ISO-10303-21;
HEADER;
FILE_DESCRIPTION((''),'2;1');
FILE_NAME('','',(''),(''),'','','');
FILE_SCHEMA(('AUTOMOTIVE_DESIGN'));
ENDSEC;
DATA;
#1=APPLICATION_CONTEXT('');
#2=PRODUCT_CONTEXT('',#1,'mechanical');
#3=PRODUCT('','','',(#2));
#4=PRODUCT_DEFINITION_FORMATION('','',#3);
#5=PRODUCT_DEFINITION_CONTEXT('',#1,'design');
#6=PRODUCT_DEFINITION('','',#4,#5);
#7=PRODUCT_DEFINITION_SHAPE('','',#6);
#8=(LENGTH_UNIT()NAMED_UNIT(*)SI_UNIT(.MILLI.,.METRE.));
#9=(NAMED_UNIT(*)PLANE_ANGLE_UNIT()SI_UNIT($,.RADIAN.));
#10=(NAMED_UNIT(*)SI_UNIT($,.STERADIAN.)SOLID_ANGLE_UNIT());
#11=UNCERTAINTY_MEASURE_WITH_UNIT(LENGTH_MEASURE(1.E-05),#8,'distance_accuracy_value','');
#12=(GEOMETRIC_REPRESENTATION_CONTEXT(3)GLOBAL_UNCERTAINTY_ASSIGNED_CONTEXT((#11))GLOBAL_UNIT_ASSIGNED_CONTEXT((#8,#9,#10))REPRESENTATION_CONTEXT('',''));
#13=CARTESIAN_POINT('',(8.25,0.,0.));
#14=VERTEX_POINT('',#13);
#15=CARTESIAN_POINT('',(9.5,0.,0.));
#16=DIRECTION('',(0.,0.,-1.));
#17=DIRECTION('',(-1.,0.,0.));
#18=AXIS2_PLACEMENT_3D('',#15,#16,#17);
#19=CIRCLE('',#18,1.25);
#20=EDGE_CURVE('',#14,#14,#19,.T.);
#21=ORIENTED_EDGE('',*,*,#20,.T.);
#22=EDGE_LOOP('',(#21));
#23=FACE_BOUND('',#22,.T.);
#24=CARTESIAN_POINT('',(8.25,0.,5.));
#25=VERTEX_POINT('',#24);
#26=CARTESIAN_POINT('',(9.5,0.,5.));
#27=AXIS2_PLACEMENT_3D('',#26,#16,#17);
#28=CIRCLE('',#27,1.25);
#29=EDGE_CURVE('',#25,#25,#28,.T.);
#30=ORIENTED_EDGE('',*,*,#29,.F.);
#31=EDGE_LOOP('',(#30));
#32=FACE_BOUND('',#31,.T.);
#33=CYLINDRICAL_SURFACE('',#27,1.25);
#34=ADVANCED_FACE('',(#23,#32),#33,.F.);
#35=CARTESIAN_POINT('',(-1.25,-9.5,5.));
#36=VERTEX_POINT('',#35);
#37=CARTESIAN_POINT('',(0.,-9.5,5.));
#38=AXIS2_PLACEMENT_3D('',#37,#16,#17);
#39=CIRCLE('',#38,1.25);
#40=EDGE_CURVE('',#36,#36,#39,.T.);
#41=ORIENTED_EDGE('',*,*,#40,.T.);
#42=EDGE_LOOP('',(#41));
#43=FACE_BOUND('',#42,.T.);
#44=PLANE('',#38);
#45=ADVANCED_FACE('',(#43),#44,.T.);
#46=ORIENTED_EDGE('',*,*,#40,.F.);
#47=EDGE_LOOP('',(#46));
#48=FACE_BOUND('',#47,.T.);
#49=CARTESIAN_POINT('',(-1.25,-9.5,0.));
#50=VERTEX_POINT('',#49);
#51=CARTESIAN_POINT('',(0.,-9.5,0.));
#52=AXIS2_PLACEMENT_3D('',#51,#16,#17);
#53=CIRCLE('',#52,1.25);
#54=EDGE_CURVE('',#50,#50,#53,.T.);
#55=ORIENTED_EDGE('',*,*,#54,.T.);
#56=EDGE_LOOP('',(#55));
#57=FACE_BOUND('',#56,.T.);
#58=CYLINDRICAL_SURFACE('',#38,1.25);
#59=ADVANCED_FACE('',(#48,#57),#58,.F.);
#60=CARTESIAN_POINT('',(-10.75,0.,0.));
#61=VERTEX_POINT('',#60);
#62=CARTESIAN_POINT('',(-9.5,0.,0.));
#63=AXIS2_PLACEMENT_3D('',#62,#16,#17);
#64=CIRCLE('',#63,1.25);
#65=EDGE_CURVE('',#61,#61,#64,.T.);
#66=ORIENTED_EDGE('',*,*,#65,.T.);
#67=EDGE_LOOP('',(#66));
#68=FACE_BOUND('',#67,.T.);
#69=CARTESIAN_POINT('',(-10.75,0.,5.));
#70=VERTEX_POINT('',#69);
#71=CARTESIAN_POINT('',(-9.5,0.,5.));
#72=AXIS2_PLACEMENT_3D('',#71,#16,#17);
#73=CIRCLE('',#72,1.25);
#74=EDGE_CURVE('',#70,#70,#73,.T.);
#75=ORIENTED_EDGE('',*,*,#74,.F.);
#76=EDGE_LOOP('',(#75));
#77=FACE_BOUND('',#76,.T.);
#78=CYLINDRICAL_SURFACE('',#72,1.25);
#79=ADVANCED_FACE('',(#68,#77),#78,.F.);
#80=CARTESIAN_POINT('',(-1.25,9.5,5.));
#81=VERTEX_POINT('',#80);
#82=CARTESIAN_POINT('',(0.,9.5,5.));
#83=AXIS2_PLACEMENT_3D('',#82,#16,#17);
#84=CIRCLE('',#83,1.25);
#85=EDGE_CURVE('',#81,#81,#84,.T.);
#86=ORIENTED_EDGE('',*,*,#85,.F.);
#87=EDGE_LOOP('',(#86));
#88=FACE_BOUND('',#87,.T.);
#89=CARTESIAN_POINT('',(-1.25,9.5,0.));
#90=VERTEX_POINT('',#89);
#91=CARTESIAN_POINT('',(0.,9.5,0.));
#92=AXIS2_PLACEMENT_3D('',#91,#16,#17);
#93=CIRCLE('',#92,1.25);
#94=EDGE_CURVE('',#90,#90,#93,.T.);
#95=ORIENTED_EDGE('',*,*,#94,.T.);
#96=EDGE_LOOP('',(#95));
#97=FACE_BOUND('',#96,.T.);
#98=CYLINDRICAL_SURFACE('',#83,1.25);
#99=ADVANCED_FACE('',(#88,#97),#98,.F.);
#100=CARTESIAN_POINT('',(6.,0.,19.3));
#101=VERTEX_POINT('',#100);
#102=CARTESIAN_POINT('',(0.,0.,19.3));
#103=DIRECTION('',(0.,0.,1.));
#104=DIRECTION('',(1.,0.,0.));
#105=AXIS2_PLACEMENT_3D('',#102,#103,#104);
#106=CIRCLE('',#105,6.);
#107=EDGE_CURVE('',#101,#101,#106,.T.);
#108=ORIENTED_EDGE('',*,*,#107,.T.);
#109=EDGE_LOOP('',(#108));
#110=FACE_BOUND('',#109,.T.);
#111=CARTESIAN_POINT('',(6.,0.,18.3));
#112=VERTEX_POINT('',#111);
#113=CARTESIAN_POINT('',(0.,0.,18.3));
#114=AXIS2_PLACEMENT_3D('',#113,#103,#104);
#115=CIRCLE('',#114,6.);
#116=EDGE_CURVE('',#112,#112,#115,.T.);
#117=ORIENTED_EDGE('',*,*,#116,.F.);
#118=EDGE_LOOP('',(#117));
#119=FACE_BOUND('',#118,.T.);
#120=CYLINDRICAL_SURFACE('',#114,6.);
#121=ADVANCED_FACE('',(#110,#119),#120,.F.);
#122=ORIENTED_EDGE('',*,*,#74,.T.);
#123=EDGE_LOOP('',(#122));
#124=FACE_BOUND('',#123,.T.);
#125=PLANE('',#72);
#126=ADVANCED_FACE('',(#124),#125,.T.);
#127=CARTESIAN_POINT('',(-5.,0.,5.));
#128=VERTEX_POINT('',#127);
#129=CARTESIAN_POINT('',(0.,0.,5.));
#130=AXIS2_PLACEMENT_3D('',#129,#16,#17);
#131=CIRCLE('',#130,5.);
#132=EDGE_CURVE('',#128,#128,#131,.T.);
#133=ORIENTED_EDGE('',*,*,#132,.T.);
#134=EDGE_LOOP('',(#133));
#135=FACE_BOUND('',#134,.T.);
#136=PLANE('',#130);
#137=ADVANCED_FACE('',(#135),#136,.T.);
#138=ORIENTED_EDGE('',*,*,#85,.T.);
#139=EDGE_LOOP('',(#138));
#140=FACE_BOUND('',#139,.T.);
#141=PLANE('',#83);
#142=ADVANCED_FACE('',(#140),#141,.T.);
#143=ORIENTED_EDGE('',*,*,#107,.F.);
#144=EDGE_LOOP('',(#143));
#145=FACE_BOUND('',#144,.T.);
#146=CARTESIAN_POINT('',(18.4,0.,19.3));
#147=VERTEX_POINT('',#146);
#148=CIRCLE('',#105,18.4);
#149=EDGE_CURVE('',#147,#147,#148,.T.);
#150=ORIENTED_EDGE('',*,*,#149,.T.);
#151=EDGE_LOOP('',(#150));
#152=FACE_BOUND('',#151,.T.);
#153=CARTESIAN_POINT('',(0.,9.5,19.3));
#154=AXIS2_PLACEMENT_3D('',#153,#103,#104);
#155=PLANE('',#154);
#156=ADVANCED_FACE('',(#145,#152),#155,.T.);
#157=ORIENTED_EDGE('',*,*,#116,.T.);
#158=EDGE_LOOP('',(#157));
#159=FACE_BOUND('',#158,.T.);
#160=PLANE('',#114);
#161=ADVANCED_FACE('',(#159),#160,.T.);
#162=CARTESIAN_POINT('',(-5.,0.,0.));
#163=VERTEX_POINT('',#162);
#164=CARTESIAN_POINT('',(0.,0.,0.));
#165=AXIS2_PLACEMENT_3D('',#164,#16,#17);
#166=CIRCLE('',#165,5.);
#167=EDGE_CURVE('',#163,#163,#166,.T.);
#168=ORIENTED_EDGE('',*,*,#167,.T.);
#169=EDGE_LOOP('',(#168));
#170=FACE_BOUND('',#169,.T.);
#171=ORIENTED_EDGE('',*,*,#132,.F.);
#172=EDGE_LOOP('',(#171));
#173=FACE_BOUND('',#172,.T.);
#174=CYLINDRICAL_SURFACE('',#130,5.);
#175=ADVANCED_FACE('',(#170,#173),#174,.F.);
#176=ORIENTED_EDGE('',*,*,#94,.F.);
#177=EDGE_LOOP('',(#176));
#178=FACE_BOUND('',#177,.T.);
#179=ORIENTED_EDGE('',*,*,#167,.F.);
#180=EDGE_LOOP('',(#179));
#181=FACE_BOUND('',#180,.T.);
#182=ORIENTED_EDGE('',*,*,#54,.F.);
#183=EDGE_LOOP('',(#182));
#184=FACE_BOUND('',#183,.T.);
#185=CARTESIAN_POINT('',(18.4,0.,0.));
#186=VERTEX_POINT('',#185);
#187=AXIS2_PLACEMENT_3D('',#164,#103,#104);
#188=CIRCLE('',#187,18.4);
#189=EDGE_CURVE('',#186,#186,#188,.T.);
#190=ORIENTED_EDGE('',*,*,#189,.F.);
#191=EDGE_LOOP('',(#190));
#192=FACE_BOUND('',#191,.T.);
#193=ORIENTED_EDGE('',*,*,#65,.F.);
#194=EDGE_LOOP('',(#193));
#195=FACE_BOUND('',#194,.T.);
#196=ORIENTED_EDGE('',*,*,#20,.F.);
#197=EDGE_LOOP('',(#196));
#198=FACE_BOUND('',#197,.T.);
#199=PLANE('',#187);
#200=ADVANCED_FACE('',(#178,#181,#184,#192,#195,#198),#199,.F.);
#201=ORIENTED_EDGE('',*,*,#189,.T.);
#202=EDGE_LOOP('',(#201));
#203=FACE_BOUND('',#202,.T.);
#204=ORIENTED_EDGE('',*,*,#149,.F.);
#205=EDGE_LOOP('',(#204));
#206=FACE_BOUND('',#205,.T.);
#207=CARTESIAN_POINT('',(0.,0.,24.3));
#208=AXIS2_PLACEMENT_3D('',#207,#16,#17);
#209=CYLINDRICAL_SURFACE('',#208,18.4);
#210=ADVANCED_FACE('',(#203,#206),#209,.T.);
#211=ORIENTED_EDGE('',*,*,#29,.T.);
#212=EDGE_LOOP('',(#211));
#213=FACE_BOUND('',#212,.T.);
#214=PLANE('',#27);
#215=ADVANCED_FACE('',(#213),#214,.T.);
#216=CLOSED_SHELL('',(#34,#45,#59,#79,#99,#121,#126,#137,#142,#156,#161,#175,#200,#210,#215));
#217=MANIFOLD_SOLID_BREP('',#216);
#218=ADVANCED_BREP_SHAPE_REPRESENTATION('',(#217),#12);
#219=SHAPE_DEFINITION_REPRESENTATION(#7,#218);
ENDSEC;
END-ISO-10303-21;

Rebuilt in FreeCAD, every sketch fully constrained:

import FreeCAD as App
import Part
import Sketcher
from FreeCAD import Vector

doc = App.newDocument("Part")
body = doc.addObject("PartDesign::Body", "Body")

sketch1 = body.newObject("Sketcher::SketchObject", "Sketch")
sketch1.AttachmentSupport = (doc.getObject("XY_Plane"), [""])
sketch1.MapMode = "FlatFace"
sketch1.addGeometry(Part.Circle(Vector(0, 0, 0), Vector(0, 0, 1), 18.4), False)
sketch1.addConstraint(Sketcher.Constraint("Coincident", 0, 3, -1, 1))
sketch1.addConstraint(Sketcher.Constraint("Diameter", 0, 36.8))
pad1 = body.newObject("PartDesign::Pad", "Pad")
pad1.Profile = sketch1
pad1.Length = 24.3

sketch2 = body.newObject("Sketcher::SketchObject", "Sketch001")
sketch2.AttachmentSupport = (doc.getObject("XY_Plane"), [""])
sketch2.MapMode = "FlatFace"
sketch2.AttachmentOffset = App.Placement(Vector(0, 0, 24.3), App.Rotation())
sketch2.addGeometry(Part.Circle(Vector(0, 0, 0), Vector(0, 0, 1), 3), False)
sketch2.addGeometry(Part.Circle(Vector(0, 9.5, 0), Vector(0, 0, 1), 1.25), False)
sketch2.addGeometry(Part.Circle(Vector(9.5, 0, 0), Vector(0, 0, 1), 1.25), False)
sketch2.addGeometry(Part.Circle(Vector(0, -9.5, 0), Vector(0, 0, 1), 1.25), False)
sketch2.addGeometry(Part.Circle(Vector(-9.5, 0, 0), Vector(0, 0, 1), 1.25), False)
sketch2.addConstraint(Sketcher.Constraint("Coincident", 0, 3, -1, 1))
sketch2.addConstraint(Sketcher.Constraint("Equal", 1, 2))
sketch2.addConstraint(Sketcher.Constraint("Equal", 2, 3))
sketch2.addConstraint(Sketcher.Constraint("Equal", 3, 4))
sketch2.addConstraint(Sketcher.Constraint("Symmetric", 1, 3, 3, 3, -1, 1))
sketch2.addConstraint(Sketcher.Constraint("Symmetric", 2, 3, 4, 3, -1, 1))
sketch2.addConstraint(Sketcher.Constraint("PointOnObject", 1, 3, -2))
sketch2.addConstraint(Sketcher.Constraint("PointOnObject", 2, 3, -1))
sketch2.addConstraint(Sketcher.Constraint("Diameter", 0, 6.0))
sketch2.addConstraint(Sketcher.Constraint("Diameter", 1, 2.5))
sketch2.addConstraint(Sketcher.Constraint("DistanceY", 3, 3, 1, 3, 19.0))
sketch2.addConstraint(Sketcher.Constraint("DistanceX", 4, 3, 2, 3, 19.0))
pocket1 = body.newObject("PartDesign::Pocket", "Pocket")
pocket1.Profile = sketch2
pocket1.Length = 5

sketch3 = body.newObject("Sketcher::SketchObject", "Sketch002")
sketch3.AttachmentSupport = (doc.getObject("XY_Plane"), [""])
sketch3.MapMode = "FlatFace"
sketch3.AttachmentOffset = App.Placement(Vector(0, 0, 5), App.Rotation())
sketch3.addGeometry(Part.Circle(Vector(9.5, 0, 0), Vector(0, 0, 1), 1.25), False)
sketch3.addGeometry(Part.Circle(Vector(0, 9.5, 0), Vector(0, 0, 1), 1.25), False)
sketch3.addGeometry(Part.Circle(Vector(-9.5, 0, 0), Vector(0, 0, 1), 1.25), False)
sketch3.addGeometry(Part.Circle(Vector(0, -9.5, 0), Vector(0, 0, 1), 1.25), False)
sketch3.addGeometry(Part.Circle(Vector(0, 0, 0), Vector(0, 0, 1), 5), False)
sketch3.addConstraint(Sketcher.Constraint("Coincident", 4, 3, -1, 1))
sketch3.addConstraint(Sketcher.Constraint("Equal", 0, 1))
sketch3.addConstraint(Sketcher.Constraint("Equal", 1, 2))
sketch3.addConstraint(Sketcher.Constraint("Equal", 2, 3))
sketch3.addConstraint(Sketcher.Constraint("Symmetric", 0, 3, 2, 3, -1, 1))
sketch3.addConstraint(Sketcher.Constraint("Symmetric", 1, 3, 3, 3, -1, 1))
sketch3.addConstraint(Sketcher.Constraint("PointOnObject", 0, 3, -1))
sketch3.addConstraint(Sketcher.Constraint("PointOnObject", 1, 3, -2))
sketch3.addConstraint(Sketcher.Constraint("Diameter", 4, 10.0))
sketch3.addConstraint(Sketcher.Constraint("Diameter", 0, 2.5))
sketch3.addConstraint(Sketcher.Constraint("DistanceX", 2, 3, 0, 3, 19.0))
sketch3.addConstraint(Sketcher.Constraint("DistanceY", 3, 3, 1, 3, 19.0))
pocket2 = body.newObject("PartDesign::Pocket", "Pocket001")
pocket2.Profile = sketch3
pocket2.Length = 5

sketch4 = body.newObject("Sketcher::SketchObject", "Sketch003")
sketch4.AttachmentSupport = (doc.getObject("XY_Plane"), [""])
sketch4.MapMode = "FlatFace"
sketch4.AttachmentOffset = App.Placement(Vector(0, 0, 19.3), App.Rotation())
sketch4.addGeometry(Part.Circle(Vector(0, 0, 0), Vector(0, 0, 1), 18.4), False)
sketch4.addConstraint(Sketcher.Constraint("Coincident", 0, 3, -1, 1))
sketch4.addConstraint(Sketcher.Constraint("Diameter", 0, 36.8))
pocket3 = body.newObject("PartDesign::Pocket", "Pocket002")
pocket3.Profile = sketch4
pocket3.Length = 5
pocket3.Reversed = True

sketch5 = body.newObject("Sketcher::SketchObject", "Sketch004")
sketch5.AttachmentSupport = (doc.getObject("XY_Plane"), [""])
sketch5.MapMode = "FlatFace"
sketch5.AttachmentOffset = App.Placement(Vector(0, 0, 19.3), App.Rotation())
sketch5.addGeometry(Part.Circle(Vector(0, 0, 0), Vector(0, 0, 1), 6), False)
sketch5.addConstraint(Sketcher.Constraint("Coincident", 0, 3, -1, 1))
sketch5.addConstraint(Sketcher.Constraint("Diameter", 0, 12.0))
pocket4 = body.newObject("PartDesign::Pocket", "Pocket003")
pocket4.Profile = sketch5
pocket4.Length = 1

doc.recompute()
